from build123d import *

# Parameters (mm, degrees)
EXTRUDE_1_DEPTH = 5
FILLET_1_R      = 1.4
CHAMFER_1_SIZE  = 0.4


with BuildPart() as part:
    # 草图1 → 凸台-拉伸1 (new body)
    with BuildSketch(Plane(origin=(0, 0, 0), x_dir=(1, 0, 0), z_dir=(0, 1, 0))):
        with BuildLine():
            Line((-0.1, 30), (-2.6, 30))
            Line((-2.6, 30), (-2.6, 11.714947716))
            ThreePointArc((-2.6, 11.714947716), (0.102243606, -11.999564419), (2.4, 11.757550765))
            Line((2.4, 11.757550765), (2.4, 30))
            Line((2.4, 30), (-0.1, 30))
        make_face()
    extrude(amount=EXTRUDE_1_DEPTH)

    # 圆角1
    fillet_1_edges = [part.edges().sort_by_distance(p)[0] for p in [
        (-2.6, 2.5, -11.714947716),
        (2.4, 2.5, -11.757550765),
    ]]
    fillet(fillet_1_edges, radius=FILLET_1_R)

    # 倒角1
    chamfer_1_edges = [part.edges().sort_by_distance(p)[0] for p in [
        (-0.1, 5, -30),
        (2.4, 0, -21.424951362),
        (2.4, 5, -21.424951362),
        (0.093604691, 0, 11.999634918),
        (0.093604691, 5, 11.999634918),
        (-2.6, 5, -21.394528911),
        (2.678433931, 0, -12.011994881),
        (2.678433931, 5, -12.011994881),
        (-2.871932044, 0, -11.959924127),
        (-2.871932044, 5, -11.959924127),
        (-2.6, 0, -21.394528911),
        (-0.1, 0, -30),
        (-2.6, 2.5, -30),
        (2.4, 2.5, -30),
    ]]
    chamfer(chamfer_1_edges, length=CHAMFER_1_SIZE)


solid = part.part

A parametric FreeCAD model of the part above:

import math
import FreeCAD as App
import Part
import Sketcher
from FreeCAD import Vector


def edges_at(feature, points):
    """Names of the edges that pass closest to the given points."""
    edges = feature.Shape.Edges
    near = lambda p: min(range(len(edges)), key=lambda i: edges[i].distToShape(Part.Vertex(*p))[0])
    return sorted({f"Edge{near(p) + 1}" for p in points})

doc = App.newDocument("Part")
body = doc.addObject("PartDesign::Body", "Body")

# Sketch on XZ plane
sketch1 = body.newObject("Sketcher::SketchObject", "Sketch")
sketch1.AttachmentSupport = (doc.getObject("XZ_Plane"), [""])
sketch1.MapMode = "FlatFace"
sketch1.addGeometry(Part.LineSegment(Vector(-3, -30, 0), Vector(-3, -12, 0)), False)
sketch1.addGeometry(Part.ArcOfCircle(Part.Circle(Vector(0, 0, 0), Vector(0, 0, 1), 12), math.radians(-78), math.radians(257)), False)
sketch1.addGeometry(Part.LineSegment(Vector(2, -12, 0), Vector(2, -30, 0)), False)
sketch1.addGeometry(Part.LineSegment(Vector(2, -30, 0), Vector(-3, -30, 0)), False)
sketch1.addConstraint(Sketcher.Constraint("Coincident", 0, 2, 1, 2))
sketch1.addConstraint(Sketcher.Constraint("Coincident", 1, 1, 2, 1))
sketch1.addConstraint(Sketcher.Constraint("Coincident", 2, 2, 3, 1))
sketch1.addConstraint(Sketcher.Constraint("Coincident", 3, 2, 0, 1))
sketch1.addConstraint(Sketcher.Constraint("Vertical", 0))
sketch1.addConstraint(Sketcher.Constraint("Vertical", 2))
sketch1.addConstraint(Sketcher.Constraint("Horizontal", 3))
sketch1.addConstraint(Sketcher.Constraint("Coincident", 1, 3, -1, 1))
sketch1.addConstraint(Sketcher.Constraint("Radius", 1, 12.0))
sketch1.addConstraint(Sketcher.Constraint("DistanceX", 3, 2, 3, 1, 5.0))
sketch1.addConstraint(Sketcher.Constraint("DistanceY", 2, 2, -1, 1, 30.0))
sketch1.addConstraint(Sketcher.Constraint("DistanceX", 0, 2, -1, 1, 2.6))
pad1 = body.newObject("PartDesign::Pad", "Pad")
pad1.Profile = sketch1
pad1.Length = 5
pad1.Reversed = True
doc.recompute()

fillet = body.newObject("PartDesign::Fillet", "Fillet")
fillet.Base = (pad1, edges_at(pad1, [(-2.6, 2.5, -11.715), (2.4, 2.5, -11.758)]))
fillet.Radius = 1.4
doc.recompute()

chamfer = body.newObject("PartDesign::Chamfer", "Chamfer")
chamfer.Base = (fillet, ["Edge1"])
chamfer.UseAllEdges = True
chamfer.Size = 0.4

doc.recompute()
